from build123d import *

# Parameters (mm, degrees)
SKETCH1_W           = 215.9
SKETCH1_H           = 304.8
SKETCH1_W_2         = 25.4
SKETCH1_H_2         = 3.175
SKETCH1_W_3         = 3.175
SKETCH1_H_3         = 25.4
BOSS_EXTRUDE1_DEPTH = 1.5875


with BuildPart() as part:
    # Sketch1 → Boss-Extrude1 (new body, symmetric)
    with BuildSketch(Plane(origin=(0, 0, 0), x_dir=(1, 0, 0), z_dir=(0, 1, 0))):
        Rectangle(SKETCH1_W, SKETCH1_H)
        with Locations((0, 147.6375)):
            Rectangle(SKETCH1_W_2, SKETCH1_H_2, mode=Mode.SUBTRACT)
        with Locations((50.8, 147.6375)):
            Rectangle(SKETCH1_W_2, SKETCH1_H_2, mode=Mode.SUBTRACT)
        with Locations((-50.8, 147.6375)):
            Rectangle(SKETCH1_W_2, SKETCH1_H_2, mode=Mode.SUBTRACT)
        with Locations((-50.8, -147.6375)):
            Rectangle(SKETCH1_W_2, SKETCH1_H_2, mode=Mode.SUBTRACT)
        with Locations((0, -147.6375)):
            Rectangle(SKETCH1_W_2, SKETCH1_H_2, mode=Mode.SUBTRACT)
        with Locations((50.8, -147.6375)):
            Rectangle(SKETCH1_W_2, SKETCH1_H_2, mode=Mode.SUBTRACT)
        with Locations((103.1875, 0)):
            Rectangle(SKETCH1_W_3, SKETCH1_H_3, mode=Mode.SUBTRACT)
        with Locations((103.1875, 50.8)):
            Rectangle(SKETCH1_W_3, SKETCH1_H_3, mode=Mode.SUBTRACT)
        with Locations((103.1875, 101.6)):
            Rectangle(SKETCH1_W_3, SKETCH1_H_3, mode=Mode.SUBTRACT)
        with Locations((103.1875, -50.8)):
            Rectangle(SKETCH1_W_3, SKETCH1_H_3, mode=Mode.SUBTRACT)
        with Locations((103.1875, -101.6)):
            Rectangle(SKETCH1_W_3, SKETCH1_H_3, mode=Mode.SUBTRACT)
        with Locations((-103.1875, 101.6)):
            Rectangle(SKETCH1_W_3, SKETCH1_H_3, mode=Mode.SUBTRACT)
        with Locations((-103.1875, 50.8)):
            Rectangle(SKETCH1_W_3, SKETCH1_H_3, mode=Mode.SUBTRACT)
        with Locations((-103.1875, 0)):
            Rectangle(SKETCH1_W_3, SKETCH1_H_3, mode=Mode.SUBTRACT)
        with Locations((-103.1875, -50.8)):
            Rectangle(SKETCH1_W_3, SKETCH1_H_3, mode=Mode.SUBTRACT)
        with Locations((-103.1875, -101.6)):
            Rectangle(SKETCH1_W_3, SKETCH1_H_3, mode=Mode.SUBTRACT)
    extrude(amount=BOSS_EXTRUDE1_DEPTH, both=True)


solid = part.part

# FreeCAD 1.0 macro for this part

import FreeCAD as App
import Part
import Sketcher
from FreeCAD import Vector
Q = App.Units.Quantity


def add_polygon(sketch, points):
    """Adds a closed chain of lines whose ends are joined by coincident constraints."""
    first, n = sketch.GeometryCount, len(points)
    for a, b in zip(points, points[1:] + points[:1]):
        sketch.addGeometry(Part.LineSegment(App.Vector(*a, 0), App.Vector(*b, 0)), False)
    for i in range(n):
        sketch.addConstraint(Sketcher.Constraint("Coincident", first + i, 2, first + (i + 1) % n, 1))

doc = App.newDocument("Part")
body = doc.addObject("PartDesign::Body", "Body")

# Sketch on XZ plane
sketch1 = doc.addObject("Sketcher::SketchObject", "Sketch")
body.addObject(sketch1)
sketch1.AttachmentSupport = (doc.XZ_Plane, [""])
sketch1.MapMode = "FlatFace"
add_polygon(sketch1, [(-108, -152.4), (-108, 152.4), (108, 152.4), (108, -152.4)])  # lines 0-3
add_polygon(sketch1, [(-101.6, 114.3), (-104.8, 114.3), (-104.8, 88.9), (-101.6, 88.9)])  # lines 4-7
add_polygon(sketch1, [(-38.1, 149.2), (-63.5, 149.2), (-63.5, 146.1), (-38.1, 146.1)])  # lines 8-11
add_polygon(sketch1, [(-101.6, 63.5), (-104.8, 63.5), (-104.8, 38.1), (-101.6, 38.1)])  # lines 12-15
add_polygon(sketch1, [(12.7, 149.2), (-12.7, 149.2), (-12.7, 146.1), (12.7, 146.1)])  # lines 16-19
add_polygon(sketch1, [(63.5, 149.2), (38.1, 149.2), (38.1, 146.1), (63.5, 146.1)])  # lines 20-23
add_polygon(sketch1, [(104.8, 114.3), (101.6, 114.3), (101.6, 88.9), (104.8, 88.9)])  # lines 24-27
add_polygon(sketch1, [(104.8, 63.5), (101.6, 63.5), (101.6, 38.1), (104.8, 38.1)])  # lines 28-31
add_polygon(sketch1, [(-101.6, 12.7), (-104.8, 12.7), (-104.8, -12.7), (-101.6, -12.7)])  # lines 32-35
add_polygon(sketch1, [(-101.6, -38.1), (-104.8, -38.1), (-104.8, -63.5), (-101.6, -63.5)])  # lines 36-39
add_polygon(sketch1, [(-101.6, -88.9), (-104.8, -88.9), (-104.8, -114.3), (-101.6, -114.3)])  # lines 40-43
add_polygon(sketch1, [(-38.1, -146.1), (-63.5, -146.1), (-63.5, -149.2), (-38.1, -149.2)])  # lines 44-47
add_polygon(sketch1, [(104.8, 12.7), (101.6, 12.7), (101.6, -12.7), (104.8, -12.7)])  # lines 48-51
add_polygon(sketch1, [(104.8, -38.1), (101.6, -38.1), (101.6, -63.5), (104.8, -63.5)])  # lines 52-55
add_polygon(sketch1, [(12.7, -146.1), (-12.7, -146.1), (-12.7, -149.2), (12.7, -149.2)])  # lines 56-59
add_polygon(sketch1, [(63.5, -146.1), (38.1, -146.1), (38.1, -149.2), (63.5, -149.2)])  # lines 60-63
add_polygon(sketch1, [(104.8, -88.9), (101.6, -88.9), (101.6, -114.3), (104.8, -114.3)])  # lines 64-67
sketch1.addConstraint([
    Sketcher.Constraint("Vertical", 0),
    Sketcher.Constraint("Horizontal", 1),
    Sketcher.Constraint("Vertical", 2),
    Sketcher.Constraint("Horizontal", 3),
    Sketcher.Constraint("Horizontal", 4),
    Sketcher.Constraint("Vertical", 5),
    Sketcher.Constraint("Horizontal", 6),
    Sketcher.Constraint("Vertical", 7),
    Sketcher.Constraint("Horizontal", 8),
    Sketcher.Constraint("Vertical", 9),
    Sketcher.Constraint("Horizontal", 10),
    Sketcher.Constraint("Vertical", 11),
    Sketcher.Constraint("Horizontal", 12),
    Sketcher.Constraint("Vertical", 13),
    Sketcher.Constraint("Horizontal", 14),
    Sketcher.Constraint("Vertical", 15),
    Sketcher.Constraint("Horizontal", 16),
    Sketcher.Constraint("Vertical", 17),
    Sketcher.Constraint("Horizontal", 18),
    Sketcher.Constraint("Vertical", 19),
    Sketcher.Constraint("Horizontal", 20),
    Sketcher.Constraint("Vertical", 21),
    Sketcher.Constraint("Horizontal", 22),
    Sketcher.Constraint("Vertical", 23),
    Sketcher.Constraint("Horizontal", 24),
    Sketcher.Constraint("Vertical", 25),
    Sketcher.Constraint("Horizontal", 26),
    Sketcher.Constraint("Vertical", 27),
    Sketcher.Constraint("Horizontal", 28),
    Sketcher.Constraint("Vertical", 29),
    Sketcher.Constraint("Horizontal", 30),
    Sketcher.Constraint("Vertical", 31),
    Sketcher.Constraint("Horizontal", 32),
    Sketcher.Constraint("Vertical", 33),
    Sketcher.Constraint("Horizontal", 34),
    Sketcher.Constraint("Vertical", 35),
    Sketcher.Constraint("Horizontal", 36),
    Sketcher.Constraint("Vertical", 37),
    Sketcher.Constraint("Horizontal", 38),
    Sketcher.Constraint("Vertical", 39),
    Sketcher.Constraint("Horizontal", 40),
    Sketcher.Constraint("Vertical", 41),
    Sketcher.Constraint("Horizontal", 42),
    Sketcher.Constraint("Vertical", 43),
    Sketcher.Constraint("Horizontal", 44),
    Sketcher.Constraint("Vertical", 45),
    Sketcher.Constraint("Horizontal", 46),
    Sketcher.Constraint("Vertical", 47),
    Sketcher.Constraint("Horizontal", 48),
    Sketcher.Constraint("Vertical", 49),
    Sketcher.Constraint("Horizontal", 50),
    Sketcher.Constraint("Vertical", 51),
    Sketcher.Constraint("Horizontal", 52),
    Sketcher.Constraint("Vertical", 53),
    Sketcher.Constraint("Horizontal", 54),
    Sketcher.Constraint("Vertical", 55),
    Sketcher.Constraint("Horizontal", 56),
    Sketcher.Constraint("Vertical", 57),
    Sketcher.Constraint("Horizontal", 58),
    Sketcher.Constraint("Vertical", 59),
    Sketcher.Constraint("Horizontal", 60),
    Sketcher.Constraint("Vertical", 61),
    Sketcher.Constraint("Horizontal", 62),
    Sketcher.Constraint("Vertical", 63),
    Sketcher.Constraint("Horizontal", 64),
    Sketcher.Constraint("Vertical", 65),
    Sketcher.Constraint("Horizontal", 66),
    Sketcher.Constraint("Vertical", 67),
    Sketcher.Constraint("Symmetric", 0, 2, 2, 2, -1, 1),
    Sketcher.Constraint("Symmetric", 30, 2, 36, 2, -1, 1),
    Sketcher.Constraint("Symmetric", 28, 2, 38, 2, -1, 1),
    Sketcher.Constraint("Symmetric", 26, 2, 40, 2, -1, 1),
    Sketcher.Constraint("Symmetric", 24, 2, 42, 2, -1, 1),
    Sketcher.Constraint("Symmetric", 22, 2, 44, 2, -1, 1),
    Sketcher.Constraint("Symmetric", 20, 2, 46, 2, -1, 1),
    Sketcher.Constraint("Symmetric", 34, 2, 48, 2, -1, 1),
    Sketcher.Constraint("Symmetric", 32, 2, 50, 2, -1, 1),
    Sketcher.Constraint("Symmetric", 14, 2, 52, 2, -1, 1),
    Sketcher.Constraint("Symmetric", 12, 2, 54, 2, -1, 1),
    Sketcher.Constraint("Symmetric", 18, 2, 56, 2, -1, 1),
    Sketcher.Constraint("Symmetric", 16, 2, 58, 2, -1, 1),
    Sketcher.Constraint("Symmetric", 10, 2, 60, 2, -1, 1),
    Sketcher.Constraint("Symmetric", 8, 2, 62, 2, -1, 1),
    Sketcher.Constraint("Symmetric", 6, 2, 64, 2, -1, 1),
    Sketcher.Constraint("Symmetric", 4, 2, 66, 2, -1, 1),
    Sketcher.Constraint("Symmetric", 11, 2, 20, 2, -2),
    Sketcher.Constraint("Symmetric", 9, 2, 22, 2, -2),
    Sketcher.Constraint("Symmetric", 7, 2, 24, 2, -2),
    Sketcher.Constraint("Symmetric", 5, 2, 26, 2, -2),
    Sketcher.Constraint("Symmetric", 15, 2, 28, 2, -2),
    Sketcher.Constraint("Symmetric", 13, 2, 30, 2, -2),
    Sketcher.Constraint("Horizontal", 11, 2, 16, 2),
    Sketcher.Constraint("Horizontal", 10, 2, 17, 2),
    Sketcher.Constraint("Horizontal", 35, 2, 48, 2),
    Sketcher.Constraint("Vertical", 5, 2, 12, 2),
    Sketcher.Constraint("Vertical", 7, 2, 14, 2),
    Sketcher.Constraint("Vertical", 13, 2, 32, 2),
    Sketcher.Constraint("Vertical", 15, 2, 34, 2),
    Sketcher.Constraint("Vertical", 17, 2, 56, 2),
    Sketcher.Constraint("Equal", 10, 16),
    Sketcher.Constraint("Equal", 62, 5),
    Sketcher.Constraint("Equal", 66, 9),
    Sketcher.Constraint("Equal", 7, 13),
    Sketcher.Constraint("Equal", 31, 33),
    Sketcher.Constraint("DistanceX", 8, 2, 8, 1, Q("1 in")),
    Sketcher.Constraint("DistanceY", 0, 1, 0, 2, Q("12 in")),
    Sketcher.Constraint("DistanceX", 1, 1, 1, 2, Q("8.5 in")),
    Sketcher.Constraint("DistanceX", 6, 2, -1, 1, Q("4 in")),
    Sketcher.Constraint("DistanceY", -1, 1, 4, 2, Q("4.5 in")),
    Sketcher.Constraint("DistanceX", 8, 2, -1, 1, Q("2.5 in")),
    Sketcher.Constraint("DistanceY", -1, 1, 12, 2, Q("2.5 in")),
    Sketcher.Constraint("DistanceX", 4, 2, 4, 1, Q("0.125 in")),
    Sketcher.Constraint("DistanceY", -1, 1, 9, 2, Q("5.75 in")),
])
pad1 = doc.addObject("PartDesign::Pad", "Pad")
body.addObject(pad1)
pad1.Profile = sketch1
pad1.Length = Q("0.125 in")
pad1.Midplane = True

doc.recompute()
